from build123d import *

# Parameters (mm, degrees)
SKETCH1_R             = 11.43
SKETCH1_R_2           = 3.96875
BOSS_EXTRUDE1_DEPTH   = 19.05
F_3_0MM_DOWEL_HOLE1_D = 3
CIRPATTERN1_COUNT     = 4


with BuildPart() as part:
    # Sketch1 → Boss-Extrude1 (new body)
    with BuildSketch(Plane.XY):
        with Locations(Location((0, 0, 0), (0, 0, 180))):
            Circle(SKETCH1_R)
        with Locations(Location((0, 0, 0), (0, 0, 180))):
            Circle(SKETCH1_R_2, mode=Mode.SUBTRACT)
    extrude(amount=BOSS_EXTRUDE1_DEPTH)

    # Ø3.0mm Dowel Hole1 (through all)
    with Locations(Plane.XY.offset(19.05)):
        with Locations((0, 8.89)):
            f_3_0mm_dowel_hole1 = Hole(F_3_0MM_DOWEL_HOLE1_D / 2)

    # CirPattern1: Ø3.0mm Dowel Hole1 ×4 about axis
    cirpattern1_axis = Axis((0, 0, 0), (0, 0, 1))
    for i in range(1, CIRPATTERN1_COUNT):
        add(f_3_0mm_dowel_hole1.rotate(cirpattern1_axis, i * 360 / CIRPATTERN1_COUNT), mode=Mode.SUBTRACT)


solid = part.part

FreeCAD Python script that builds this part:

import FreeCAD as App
import Part
import Sketcher

V = App.Vector
Q = App.Units.Quantity

doc = App.newDocument("Part")
body = doc.addObject("PartDesign::Body", "Body")

# Sketch on XY plane
sketch1 = body.newObject("Sketcher::SketchObject", "Sketch")
sketch1.AttachmentSupport = (doc.getObject("XY_Plane"), [""])
sketch1.MapMode = "FlatFace"
sketch1.addGeometry(Part.Circle(V(0, 0, 0), V(0, 0, 1), 11.4), False)
sketch1.addGeometry(Part.Circle(V(0, 0, 0), V(0, 0, 1), 4), False)
sketch1.addConstraint(Sketcher.Constraint("Coincident", 0, 3, -1, 1))
sketch1.addConstraint(Sketcher.Constraint("Coincident", 1, 3, -1, 1))
sketch1.addConstraint(Sketcher.Constraint("Diameter", 0, Q("0.9 in")))
sketch1.addConstraint(Sketcher.Constraint("Diameter", 1, Q("0.3125 in")))
pad1 = body.newObject("PartDesign::Pad", "Pad")
pad1.Profile = sketch1
pad1.Length = Q("0.75 in")

# Sketch on XY plane
sketch2 = body.newObject("Sketcher::SketchObject", "Sketch001")
sketch2.AttachmentSupport = (doc.getObject("XY_Plane"), [""])
sketch2.MapMode = "FlatFace"
sketch2.AttachmentOffset = App.Placement(V(0, 0, 0.75 * 25.4), App.Rotation())
sketch2.addGeometry(Part.Circle(V(0, 8.9, 0), V(0, 0, 1), 1.5), False)
sketch2.addConstraint(Sketcher.Constraint("PointOnObject", 0, 3, -2))
sketch2.addConstraint(Sketcher.Constraint("Diameter", 0, Q("3 mm")))
sketch2.addConstraint(Sketcher.Constraint("DistanceY", -1, 1, 0, 3, Q("0.35 in")))
doc.recompute()
hole = body.newObject("PartDesign::Hole", "Hole")
hole.Profile = sketch2
hole.ThreadType = "None"
hole.Diameter = 3
hole.DepthType = "ThroughAll"
doc.recompute()

polarpattern = body.newObject("PartDesign::PolarPattern", "PolarPattern")
polarpattern.Originals = [hole]
polarpattern.Axis = (doc.getObject("Z_Axis"), [""])
polarpattern.Angle = 360
polarpattern.Occurrences = 4
body.Tip = polarpattern

doc.recompute()
